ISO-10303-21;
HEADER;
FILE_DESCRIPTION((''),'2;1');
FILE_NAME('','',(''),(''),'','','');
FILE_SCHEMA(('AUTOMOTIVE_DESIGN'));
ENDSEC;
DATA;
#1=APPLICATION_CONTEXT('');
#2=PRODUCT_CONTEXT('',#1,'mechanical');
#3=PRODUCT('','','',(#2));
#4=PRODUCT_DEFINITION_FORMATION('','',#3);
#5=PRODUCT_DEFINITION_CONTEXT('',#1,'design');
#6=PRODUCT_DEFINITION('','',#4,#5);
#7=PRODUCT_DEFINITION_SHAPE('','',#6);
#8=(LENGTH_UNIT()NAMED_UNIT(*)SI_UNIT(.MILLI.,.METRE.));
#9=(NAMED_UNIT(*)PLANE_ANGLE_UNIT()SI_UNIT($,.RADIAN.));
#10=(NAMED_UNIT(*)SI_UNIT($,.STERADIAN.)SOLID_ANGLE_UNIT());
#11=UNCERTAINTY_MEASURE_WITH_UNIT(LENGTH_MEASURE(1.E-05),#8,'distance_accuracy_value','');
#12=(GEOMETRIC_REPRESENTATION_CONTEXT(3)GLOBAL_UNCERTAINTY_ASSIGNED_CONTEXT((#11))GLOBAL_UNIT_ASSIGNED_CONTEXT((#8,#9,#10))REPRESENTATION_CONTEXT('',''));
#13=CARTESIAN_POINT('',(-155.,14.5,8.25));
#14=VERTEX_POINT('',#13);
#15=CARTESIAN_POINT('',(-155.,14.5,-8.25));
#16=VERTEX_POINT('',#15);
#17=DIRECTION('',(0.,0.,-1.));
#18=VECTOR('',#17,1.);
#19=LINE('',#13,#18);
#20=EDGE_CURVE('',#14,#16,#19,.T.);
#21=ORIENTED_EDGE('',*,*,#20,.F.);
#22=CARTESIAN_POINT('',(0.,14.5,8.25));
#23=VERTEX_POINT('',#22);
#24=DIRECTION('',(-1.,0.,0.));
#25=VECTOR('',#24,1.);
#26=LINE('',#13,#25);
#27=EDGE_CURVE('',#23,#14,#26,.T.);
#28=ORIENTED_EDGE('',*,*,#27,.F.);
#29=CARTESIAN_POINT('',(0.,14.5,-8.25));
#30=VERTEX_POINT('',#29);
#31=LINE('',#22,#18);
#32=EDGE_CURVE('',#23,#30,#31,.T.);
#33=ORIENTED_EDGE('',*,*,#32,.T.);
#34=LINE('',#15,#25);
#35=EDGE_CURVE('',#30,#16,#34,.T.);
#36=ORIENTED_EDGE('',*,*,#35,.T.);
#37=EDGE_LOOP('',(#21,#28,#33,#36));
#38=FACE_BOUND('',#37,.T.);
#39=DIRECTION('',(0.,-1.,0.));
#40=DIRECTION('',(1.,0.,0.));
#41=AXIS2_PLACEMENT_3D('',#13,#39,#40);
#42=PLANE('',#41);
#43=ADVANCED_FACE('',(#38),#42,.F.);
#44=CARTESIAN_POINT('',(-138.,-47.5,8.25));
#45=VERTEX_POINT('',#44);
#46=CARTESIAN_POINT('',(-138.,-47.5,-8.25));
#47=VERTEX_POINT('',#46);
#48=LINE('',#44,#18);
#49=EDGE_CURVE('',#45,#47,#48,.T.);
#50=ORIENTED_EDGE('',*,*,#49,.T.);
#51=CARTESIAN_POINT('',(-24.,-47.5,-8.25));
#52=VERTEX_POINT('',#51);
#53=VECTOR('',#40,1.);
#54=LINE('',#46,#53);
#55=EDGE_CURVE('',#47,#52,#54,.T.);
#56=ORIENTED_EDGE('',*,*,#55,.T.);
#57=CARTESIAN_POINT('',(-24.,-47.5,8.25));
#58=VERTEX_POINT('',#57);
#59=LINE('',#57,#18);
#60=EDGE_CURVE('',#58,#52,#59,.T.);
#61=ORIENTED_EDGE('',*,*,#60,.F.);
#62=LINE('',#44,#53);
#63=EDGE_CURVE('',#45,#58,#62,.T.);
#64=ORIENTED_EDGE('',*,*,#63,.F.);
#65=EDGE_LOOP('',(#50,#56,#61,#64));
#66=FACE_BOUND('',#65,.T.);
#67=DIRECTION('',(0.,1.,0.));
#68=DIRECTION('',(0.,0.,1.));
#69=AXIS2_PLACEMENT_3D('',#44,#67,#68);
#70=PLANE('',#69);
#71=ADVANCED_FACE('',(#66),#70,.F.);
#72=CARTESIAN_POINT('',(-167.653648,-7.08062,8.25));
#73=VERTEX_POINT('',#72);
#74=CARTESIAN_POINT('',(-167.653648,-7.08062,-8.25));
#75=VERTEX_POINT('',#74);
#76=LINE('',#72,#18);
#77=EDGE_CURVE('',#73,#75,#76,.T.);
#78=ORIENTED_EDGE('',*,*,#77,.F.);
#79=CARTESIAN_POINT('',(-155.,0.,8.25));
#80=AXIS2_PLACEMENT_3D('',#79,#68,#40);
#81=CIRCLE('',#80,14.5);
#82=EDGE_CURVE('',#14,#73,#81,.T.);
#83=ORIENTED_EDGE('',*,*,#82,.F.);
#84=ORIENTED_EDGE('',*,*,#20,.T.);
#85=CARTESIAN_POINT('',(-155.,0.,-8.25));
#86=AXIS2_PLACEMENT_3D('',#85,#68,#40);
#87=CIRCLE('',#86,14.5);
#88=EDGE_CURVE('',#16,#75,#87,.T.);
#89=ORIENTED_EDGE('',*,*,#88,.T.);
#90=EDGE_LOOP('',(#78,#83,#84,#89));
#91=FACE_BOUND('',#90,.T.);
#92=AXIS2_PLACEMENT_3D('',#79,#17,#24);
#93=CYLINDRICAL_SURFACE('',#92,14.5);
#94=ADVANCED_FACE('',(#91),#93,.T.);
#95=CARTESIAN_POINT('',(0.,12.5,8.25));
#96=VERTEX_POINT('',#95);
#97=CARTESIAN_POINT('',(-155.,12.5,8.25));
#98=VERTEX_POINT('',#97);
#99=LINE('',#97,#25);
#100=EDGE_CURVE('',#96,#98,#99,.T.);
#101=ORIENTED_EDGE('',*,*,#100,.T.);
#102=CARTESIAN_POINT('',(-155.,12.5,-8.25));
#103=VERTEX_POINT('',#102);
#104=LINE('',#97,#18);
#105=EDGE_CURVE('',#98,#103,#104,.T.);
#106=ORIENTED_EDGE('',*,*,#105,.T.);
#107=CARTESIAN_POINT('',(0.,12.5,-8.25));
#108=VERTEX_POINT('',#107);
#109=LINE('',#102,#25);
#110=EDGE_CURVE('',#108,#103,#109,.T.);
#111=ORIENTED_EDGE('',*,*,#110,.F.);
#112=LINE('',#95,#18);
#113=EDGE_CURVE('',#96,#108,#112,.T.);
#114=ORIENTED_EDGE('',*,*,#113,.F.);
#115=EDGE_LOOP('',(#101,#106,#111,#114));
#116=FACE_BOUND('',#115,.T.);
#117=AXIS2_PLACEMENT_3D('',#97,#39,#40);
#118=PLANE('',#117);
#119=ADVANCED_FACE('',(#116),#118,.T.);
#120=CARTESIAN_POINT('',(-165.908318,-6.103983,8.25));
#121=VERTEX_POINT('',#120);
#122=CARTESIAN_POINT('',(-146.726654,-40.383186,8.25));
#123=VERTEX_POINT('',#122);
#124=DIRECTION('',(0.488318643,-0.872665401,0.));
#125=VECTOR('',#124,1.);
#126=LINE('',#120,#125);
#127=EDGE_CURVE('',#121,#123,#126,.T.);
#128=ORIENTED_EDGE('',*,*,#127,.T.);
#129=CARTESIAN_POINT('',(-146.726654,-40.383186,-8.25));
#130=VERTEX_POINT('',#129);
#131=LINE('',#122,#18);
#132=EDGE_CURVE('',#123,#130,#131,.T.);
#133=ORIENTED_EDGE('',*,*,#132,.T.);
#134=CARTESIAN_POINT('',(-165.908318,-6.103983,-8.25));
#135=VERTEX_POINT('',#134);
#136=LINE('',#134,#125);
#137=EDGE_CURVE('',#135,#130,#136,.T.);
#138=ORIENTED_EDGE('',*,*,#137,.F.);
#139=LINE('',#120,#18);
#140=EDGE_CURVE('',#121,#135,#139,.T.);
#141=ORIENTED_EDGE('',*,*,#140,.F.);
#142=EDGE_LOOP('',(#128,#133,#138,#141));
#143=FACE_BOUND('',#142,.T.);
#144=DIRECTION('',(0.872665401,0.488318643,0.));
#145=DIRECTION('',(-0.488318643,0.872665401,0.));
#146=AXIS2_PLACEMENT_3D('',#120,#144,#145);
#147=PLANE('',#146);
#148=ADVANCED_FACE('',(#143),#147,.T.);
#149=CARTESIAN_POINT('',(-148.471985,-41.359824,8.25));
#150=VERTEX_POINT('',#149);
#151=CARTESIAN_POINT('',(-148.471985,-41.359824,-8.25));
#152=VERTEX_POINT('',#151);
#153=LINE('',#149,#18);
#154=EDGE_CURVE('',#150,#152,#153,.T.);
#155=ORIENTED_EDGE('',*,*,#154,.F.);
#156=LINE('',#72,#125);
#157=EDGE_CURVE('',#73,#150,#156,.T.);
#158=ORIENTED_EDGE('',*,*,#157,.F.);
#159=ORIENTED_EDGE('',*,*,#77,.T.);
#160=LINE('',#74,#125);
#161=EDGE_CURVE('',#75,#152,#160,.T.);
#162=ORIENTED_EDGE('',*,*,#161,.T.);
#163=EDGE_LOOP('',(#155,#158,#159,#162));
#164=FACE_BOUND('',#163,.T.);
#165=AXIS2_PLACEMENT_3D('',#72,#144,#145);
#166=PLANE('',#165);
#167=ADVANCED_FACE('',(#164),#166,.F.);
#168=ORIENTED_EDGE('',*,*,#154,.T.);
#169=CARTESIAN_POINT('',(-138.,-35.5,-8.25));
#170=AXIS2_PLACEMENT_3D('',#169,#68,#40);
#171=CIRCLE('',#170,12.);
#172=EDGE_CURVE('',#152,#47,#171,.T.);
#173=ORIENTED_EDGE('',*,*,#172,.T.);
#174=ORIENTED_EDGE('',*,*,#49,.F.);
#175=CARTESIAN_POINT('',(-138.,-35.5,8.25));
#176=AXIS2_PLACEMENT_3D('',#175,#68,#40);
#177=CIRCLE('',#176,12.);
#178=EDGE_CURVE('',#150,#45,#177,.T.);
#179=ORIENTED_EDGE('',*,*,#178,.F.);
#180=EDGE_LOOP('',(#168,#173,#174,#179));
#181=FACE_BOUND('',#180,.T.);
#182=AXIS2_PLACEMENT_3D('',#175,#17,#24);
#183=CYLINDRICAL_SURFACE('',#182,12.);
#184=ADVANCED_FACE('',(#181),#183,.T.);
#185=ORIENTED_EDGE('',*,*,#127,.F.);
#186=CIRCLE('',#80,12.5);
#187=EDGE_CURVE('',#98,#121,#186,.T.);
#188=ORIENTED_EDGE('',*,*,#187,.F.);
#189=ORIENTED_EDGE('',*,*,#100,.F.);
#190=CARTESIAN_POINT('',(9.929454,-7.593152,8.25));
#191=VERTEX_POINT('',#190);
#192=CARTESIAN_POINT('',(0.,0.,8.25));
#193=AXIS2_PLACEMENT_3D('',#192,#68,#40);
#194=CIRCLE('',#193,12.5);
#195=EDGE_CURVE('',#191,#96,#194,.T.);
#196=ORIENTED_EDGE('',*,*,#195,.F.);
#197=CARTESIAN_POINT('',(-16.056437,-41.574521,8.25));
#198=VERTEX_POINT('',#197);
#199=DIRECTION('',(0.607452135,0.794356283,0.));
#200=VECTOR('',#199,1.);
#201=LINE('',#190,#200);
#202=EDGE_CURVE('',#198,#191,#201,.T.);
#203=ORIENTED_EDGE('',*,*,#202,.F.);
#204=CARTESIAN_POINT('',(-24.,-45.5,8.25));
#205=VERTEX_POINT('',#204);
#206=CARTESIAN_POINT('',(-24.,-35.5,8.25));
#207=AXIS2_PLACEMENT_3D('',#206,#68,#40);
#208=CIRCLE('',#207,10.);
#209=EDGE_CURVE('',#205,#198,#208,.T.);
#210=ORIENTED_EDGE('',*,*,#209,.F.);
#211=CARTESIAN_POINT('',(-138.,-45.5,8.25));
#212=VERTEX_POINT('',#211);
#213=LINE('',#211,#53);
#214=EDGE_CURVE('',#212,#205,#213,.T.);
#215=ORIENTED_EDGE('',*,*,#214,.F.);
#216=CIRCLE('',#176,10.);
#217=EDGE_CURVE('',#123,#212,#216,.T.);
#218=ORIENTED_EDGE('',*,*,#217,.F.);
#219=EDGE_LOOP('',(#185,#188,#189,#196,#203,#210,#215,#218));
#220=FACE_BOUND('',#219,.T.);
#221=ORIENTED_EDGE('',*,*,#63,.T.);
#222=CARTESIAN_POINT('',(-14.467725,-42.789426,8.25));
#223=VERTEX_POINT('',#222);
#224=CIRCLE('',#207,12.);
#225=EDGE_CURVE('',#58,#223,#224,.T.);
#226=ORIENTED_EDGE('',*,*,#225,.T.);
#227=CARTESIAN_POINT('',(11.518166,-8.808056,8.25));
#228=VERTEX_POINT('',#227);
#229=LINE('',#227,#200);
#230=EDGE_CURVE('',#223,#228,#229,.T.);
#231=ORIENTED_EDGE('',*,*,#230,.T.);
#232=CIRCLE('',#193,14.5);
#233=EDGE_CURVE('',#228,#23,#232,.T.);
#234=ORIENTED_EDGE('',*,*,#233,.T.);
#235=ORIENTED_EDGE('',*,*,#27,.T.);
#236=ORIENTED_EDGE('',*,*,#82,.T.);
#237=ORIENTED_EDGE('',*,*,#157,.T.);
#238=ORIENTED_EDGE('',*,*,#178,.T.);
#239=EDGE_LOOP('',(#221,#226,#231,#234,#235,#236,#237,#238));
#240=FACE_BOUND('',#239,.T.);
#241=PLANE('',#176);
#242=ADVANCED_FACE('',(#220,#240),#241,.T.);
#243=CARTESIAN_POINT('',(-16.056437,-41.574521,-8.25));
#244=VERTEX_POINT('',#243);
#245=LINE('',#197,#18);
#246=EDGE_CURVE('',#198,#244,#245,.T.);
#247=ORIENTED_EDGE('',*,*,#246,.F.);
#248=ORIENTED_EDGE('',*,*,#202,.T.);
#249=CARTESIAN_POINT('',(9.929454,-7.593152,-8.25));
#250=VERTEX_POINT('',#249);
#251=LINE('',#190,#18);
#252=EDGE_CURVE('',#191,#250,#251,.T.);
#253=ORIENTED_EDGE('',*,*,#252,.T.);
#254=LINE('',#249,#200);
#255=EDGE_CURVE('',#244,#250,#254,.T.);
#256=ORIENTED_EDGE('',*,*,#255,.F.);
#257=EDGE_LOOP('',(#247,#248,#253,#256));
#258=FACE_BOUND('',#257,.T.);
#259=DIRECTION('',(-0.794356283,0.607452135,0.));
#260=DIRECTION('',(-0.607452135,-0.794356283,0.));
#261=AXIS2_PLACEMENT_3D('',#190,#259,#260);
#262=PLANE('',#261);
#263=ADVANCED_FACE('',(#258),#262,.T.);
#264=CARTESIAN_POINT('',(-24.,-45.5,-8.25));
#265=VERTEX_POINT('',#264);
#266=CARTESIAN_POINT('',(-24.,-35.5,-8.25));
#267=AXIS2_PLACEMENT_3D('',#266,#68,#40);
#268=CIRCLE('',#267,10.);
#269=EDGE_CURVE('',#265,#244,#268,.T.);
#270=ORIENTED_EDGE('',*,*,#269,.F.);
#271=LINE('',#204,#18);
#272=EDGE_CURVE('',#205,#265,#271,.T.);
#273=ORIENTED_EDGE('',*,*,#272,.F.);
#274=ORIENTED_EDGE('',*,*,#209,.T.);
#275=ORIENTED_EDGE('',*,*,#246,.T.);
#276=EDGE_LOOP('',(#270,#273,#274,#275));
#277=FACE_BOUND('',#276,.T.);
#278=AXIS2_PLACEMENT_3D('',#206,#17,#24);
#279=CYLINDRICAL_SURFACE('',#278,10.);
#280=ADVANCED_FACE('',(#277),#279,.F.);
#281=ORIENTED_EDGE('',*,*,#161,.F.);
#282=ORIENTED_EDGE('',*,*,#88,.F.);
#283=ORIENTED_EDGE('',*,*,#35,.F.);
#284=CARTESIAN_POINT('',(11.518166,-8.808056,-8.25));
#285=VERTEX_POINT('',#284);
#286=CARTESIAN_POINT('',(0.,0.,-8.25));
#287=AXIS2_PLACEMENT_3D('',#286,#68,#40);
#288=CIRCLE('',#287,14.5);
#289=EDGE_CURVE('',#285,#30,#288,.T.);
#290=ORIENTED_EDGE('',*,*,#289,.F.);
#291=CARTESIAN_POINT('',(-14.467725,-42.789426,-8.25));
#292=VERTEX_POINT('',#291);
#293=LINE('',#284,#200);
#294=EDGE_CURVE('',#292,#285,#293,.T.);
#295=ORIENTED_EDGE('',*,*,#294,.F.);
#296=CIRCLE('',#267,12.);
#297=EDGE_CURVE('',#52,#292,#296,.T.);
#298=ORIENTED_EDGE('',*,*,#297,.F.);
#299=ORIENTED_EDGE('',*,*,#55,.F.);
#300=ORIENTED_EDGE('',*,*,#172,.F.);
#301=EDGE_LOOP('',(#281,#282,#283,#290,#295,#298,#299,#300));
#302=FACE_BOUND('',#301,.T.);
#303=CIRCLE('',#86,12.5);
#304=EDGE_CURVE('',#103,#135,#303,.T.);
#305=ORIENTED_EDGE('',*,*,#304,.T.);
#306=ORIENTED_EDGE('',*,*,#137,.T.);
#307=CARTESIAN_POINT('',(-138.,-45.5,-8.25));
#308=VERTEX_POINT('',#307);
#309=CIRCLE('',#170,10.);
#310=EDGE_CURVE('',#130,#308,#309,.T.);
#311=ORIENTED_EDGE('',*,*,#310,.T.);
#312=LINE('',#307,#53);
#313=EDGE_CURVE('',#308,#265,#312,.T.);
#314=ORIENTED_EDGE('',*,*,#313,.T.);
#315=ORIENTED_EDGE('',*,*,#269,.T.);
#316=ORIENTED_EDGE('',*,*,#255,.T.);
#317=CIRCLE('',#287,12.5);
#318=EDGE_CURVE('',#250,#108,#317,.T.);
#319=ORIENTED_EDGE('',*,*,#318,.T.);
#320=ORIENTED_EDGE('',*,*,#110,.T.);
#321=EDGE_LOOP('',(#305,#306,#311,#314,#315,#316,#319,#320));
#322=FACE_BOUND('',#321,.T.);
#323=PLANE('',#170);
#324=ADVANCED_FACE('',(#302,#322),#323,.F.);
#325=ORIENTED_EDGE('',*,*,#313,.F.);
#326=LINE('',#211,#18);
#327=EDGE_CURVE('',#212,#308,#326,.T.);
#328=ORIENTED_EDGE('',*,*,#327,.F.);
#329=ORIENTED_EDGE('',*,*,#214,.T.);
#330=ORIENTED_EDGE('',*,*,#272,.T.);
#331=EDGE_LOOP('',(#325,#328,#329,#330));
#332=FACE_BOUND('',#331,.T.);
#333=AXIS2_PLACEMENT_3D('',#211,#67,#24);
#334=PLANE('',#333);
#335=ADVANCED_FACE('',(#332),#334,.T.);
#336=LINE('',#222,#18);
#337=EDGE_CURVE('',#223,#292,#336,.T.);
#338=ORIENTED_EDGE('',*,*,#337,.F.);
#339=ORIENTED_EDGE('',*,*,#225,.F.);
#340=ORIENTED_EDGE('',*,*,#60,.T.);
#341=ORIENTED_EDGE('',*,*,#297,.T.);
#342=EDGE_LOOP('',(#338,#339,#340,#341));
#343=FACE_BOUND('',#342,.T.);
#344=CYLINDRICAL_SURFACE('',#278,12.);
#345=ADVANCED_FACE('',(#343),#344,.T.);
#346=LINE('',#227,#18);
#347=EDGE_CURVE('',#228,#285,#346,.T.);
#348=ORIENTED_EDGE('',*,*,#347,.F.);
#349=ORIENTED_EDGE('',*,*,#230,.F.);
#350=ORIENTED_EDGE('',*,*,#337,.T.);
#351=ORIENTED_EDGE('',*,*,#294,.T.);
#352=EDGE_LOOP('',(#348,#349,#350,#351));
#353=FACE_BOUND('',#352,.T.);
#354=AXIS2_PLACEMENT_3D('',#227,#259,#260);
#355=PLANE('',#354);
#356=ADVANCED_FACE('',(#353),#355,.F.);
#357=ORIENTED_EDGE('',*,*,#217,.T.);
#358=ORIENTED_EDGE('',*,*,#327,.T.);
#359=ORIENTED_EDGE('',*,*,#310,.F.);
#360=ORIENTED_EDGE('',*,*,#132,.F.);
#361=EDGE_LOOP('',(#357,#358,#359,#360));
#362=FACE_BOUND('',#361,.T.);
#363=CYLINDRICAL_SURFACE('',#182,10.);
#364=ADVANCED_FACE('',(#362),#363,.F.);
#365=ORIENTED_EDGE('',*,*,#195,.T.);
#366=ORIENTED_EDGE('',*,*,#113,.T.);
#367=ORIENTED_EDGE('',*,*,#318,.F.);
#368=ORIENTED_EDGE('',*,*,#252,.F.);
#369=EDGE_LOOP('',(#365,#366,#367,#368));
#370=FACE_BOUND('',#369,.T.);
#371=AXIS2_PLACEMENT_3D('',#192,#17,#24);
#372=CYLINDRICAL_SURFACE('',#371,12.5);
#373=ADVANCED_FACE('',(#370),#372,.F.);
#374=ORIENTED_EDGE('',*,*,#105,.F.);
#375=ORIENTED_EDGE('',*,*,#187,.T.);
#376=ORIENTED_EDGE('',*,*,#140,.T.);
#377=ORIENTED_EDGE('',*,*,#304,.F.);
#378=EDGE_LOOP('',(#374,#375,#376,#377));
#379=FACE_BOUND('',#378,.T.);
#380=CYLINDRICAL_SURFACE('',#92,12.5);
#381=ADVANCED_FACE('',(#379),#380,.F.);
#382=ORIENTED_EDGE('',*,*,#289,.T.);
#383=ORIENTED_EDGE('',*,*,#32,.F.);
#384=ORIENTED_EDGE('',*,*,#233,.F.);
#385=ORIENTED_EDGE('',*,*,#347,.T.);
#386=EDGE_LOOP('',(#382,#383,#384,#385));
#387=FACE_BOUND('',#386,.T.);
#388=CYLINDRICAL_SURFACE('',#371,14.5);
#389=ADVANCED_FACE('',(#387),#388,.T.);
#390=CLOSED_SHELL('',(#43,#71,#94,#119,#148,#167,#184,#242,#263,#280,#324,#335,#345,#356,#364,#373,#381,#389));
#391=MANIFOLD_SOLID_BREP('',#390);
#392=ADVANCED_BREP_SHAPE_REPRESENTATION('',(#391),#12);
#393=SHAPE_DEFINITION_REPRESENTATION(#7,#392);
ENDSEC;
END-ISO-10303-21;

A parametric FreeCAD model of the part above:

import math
import FreeCAD as App
import Part
import Sketcher

doc = App.newDocument("Part")
body = doc.addObject("PartDesign::Body", "Body")

# Sketch on XY plane
sketch1 = doc.addObject("Sketcher::SketchObject", "Sketch")
body.addObject(sketch1)
sketch1.AttachmentSupport = (doc.XY_Plane, [""])
sketch1.MapMode = "FlatFace"
sketch1.addGeometry(Part.LineSegment(App.Vector(-138, -48, 0), App.Vector(-24, -48, 0)), False)
sketch1.addGeometry(Part.ArcOfCircle(Part.Circle(App.Vector(-24, -35, 0), App.Vector(0, 0, 1), 12), math.radians(-90), math.radians(-37)), False)
sketch1.addGeometry(Part.LineSegment(App.Vector(-14, -43, 0), App.Vector(12, -9, 0)), False)
sketch1.addGeometry(Part.ArcOfCircle(Part.Circle(App.Vector(0, 0, 0), App.Vector(0, 0, 1), 14), math.radians(-37), math.radians(90)), False)
sketch1.addGeometry(Part.LineSegment(App.Vector(0, 14, 0), App.Vector(-155, 14, 0)), False)
sketch1.addGeometry(Part.ArcOfCircle(Part.Circle(App.Vector(-155, 0, 0), App.Vector(0, 0, 1), 14), math.radians(90), math.radians(209)), False)
sketch1.addGeometry(Part.LineSegment(App.Vector(-168, -7, 0), App.Vector(-148, -41, 0)), False)
sketch1.addGeometry(Part.ArcOfCircle(Part.Circle(App.Vector(-138, -36, 0), App.Vector(0, 0, 1), 12), math.radians(-151), math.radians(-90)), False)
sketch1.addGeometry(Part.ArcOfCircle(Part.Circle(App.Vector(-155, 0, 0), App.Vector(0, 0, 1), 12), math.radians(90), math.radians(209)), False)
sketch1.addGeometry(Part.LineSegment(App.Vector(-155, 12, 0), App.Vector(0, 12, 0)), False)
sketch1.addGeometry(Part.ArcOfCircle(Part.Circle(App.Vector(0, 0, 0), App.Vector(0, 0, 1), 12), math.radians(-37), math.radians(90)), False)
sketch1.addGeometry(Part.LineSegment(App.Vector(10, -8, 0), App.Vector(-16, -42, 0)), False)
sketch1.addGeometry(Part.ArcOfCircle(Part.Circle(App.Vector(-24, -36, 0), App.Vector(0, 0, 1), 10), math.radians(-90), math.radians(-37)), False)
sketch1.addGeometry(Part.LineSegment(App.Vector(-24, -46, 0), App.Vector(-138, -46, 0)), False)
sketch1.addGeometry(Part.ArcOfCircle(Part.Circle(App.Vector(-138, -35, 0), App.Vector(0, 0, 1), 10), math.radians(-151), math.radians(-90)), False)
sketch1.addGeometry(Part.LineSegment(App.Vector(-147, -40, 0), App.Vector(-166, -6, 0)), False)
sketch1.addConstraint(Sketcher.Constraint("Tangent", 0, 2, 1, 1))
sketch1.addConstraint(Sketcher.Constraint("Tangent", 1, 2, 2, 1))
sketch1.addConstraint(Sketcher.Constraint("Tangent", 2, 2, 3, 1))
sketch1.addConstraint(Sketcher.Constraint("Tangent", 3, 2, 4, 1))
sketch1.addConstraint(Sketcher.Constraint("Tangent", 4, 2, 5, 1))
sketch1.addConstraint(Sketcher.Constraint("Tangent", 5, 2, 6, 1))
sketch1.addConstraint(Sketcher.Constraint("Tangent", 6, 2, 7, 1))
sketch1.addConstraint(Sketcher.Constraint("Tangent", 7, 2, 0, 1))
sketch1.addConstraint(Sketcher.Constraint("Tangent", 8, 1, 9, 1))
sketch1.addConstraint(Sketcher.Constraint("Tangent", 9, 2, 10, 2))
sketch1.addConstraint(Sketcher.Constraint("Tangent", 10, 1, 11, 1))
sketch1.addConstraint(Sketcher.Constraint("Tangent", 11, 2, 12, 2))
sketch1.addConstraint(Sketcher.Constraint("Tangent", 12, 1, 13, 1))
sketch1.addConstraint(Sketcher.Constraint("Tangent", 13, 2, 14, 2))
sketch1.addConstraint(Sketcher.Constraint("Tangent", 14, 1, 15, 1))
sketch1.addConstraint(Sketcher.Constraint("Tangent", 15, 2, 8, 2))
sketch1.addConstraint(Sketcher.Constraint("Horizontal", 0))
sketch1.addConstraint(Sketcher.Constraint("Horizontal", 4))
sketch1.addConstraint(Sketcher.Constraint("Horizontal", 9))
sketch1.addConstraint(Sketcher.Constraint("Horizontal", 13))
sketch1.addConstraint(Sketcher.Constraint("Coincident", 3, 3, -1, 1))
sketch1.addConstraint(Sketcher.Constraint("Coincident", 10, 3, -1, 1))
sketch1.addConstraint(Sketcher.Constraint("Coincident", 8, 3, 5, 3))
sketch1.addConstraint(Sketcher.Constraint("Coincident", 12, 3, 1, 3))
sketch1.addConstraint(Sketcher.Constraint("Coincident", 14, 3, 7, 3))
sketch1.addConstraint(Sketcher.Constraint("Equal", 3, 5))
sketch1.addConstraint(Sketcher.Constraint("Equal", 1, 7))
sketch1.addConstraint(Sketcher.Constraint("Parallel", 2, 11))
sketch1.addConstraint(Sketcher.Constraint("Radius", 1, 12.0))
sketch1.addConstraint(Sketcher.Constraint("Radius", 12, 10.0))
sketch1.addConstraint(Sketcher.Constraint("Radius", 3, 14.5))
sketch1.addConstraint(Sketcher.Constraint("DistanceX", 0, 1, 0, 2, 114.0))
sketch1.addConstraint(Sketcher.Constraint("DistanceX", 4, 2, 4, 1, 155.0))
sketch1.addConstraint(Sketcher.Constraint("DistanceX", 1, 3, -1, 1, 24.0))
sketch1.addConstraint(Sketcher.Constraint("DistanceY", 1, 3, 3, 2, 50.0))
pad1 = doc.addObject("PartDesign::Pad", "Pad")
body.addObject(pad1)
pad1.Profile = sketch1
pad1.Length = 16.5
pad1.Midplane = True

doc.recompute()
